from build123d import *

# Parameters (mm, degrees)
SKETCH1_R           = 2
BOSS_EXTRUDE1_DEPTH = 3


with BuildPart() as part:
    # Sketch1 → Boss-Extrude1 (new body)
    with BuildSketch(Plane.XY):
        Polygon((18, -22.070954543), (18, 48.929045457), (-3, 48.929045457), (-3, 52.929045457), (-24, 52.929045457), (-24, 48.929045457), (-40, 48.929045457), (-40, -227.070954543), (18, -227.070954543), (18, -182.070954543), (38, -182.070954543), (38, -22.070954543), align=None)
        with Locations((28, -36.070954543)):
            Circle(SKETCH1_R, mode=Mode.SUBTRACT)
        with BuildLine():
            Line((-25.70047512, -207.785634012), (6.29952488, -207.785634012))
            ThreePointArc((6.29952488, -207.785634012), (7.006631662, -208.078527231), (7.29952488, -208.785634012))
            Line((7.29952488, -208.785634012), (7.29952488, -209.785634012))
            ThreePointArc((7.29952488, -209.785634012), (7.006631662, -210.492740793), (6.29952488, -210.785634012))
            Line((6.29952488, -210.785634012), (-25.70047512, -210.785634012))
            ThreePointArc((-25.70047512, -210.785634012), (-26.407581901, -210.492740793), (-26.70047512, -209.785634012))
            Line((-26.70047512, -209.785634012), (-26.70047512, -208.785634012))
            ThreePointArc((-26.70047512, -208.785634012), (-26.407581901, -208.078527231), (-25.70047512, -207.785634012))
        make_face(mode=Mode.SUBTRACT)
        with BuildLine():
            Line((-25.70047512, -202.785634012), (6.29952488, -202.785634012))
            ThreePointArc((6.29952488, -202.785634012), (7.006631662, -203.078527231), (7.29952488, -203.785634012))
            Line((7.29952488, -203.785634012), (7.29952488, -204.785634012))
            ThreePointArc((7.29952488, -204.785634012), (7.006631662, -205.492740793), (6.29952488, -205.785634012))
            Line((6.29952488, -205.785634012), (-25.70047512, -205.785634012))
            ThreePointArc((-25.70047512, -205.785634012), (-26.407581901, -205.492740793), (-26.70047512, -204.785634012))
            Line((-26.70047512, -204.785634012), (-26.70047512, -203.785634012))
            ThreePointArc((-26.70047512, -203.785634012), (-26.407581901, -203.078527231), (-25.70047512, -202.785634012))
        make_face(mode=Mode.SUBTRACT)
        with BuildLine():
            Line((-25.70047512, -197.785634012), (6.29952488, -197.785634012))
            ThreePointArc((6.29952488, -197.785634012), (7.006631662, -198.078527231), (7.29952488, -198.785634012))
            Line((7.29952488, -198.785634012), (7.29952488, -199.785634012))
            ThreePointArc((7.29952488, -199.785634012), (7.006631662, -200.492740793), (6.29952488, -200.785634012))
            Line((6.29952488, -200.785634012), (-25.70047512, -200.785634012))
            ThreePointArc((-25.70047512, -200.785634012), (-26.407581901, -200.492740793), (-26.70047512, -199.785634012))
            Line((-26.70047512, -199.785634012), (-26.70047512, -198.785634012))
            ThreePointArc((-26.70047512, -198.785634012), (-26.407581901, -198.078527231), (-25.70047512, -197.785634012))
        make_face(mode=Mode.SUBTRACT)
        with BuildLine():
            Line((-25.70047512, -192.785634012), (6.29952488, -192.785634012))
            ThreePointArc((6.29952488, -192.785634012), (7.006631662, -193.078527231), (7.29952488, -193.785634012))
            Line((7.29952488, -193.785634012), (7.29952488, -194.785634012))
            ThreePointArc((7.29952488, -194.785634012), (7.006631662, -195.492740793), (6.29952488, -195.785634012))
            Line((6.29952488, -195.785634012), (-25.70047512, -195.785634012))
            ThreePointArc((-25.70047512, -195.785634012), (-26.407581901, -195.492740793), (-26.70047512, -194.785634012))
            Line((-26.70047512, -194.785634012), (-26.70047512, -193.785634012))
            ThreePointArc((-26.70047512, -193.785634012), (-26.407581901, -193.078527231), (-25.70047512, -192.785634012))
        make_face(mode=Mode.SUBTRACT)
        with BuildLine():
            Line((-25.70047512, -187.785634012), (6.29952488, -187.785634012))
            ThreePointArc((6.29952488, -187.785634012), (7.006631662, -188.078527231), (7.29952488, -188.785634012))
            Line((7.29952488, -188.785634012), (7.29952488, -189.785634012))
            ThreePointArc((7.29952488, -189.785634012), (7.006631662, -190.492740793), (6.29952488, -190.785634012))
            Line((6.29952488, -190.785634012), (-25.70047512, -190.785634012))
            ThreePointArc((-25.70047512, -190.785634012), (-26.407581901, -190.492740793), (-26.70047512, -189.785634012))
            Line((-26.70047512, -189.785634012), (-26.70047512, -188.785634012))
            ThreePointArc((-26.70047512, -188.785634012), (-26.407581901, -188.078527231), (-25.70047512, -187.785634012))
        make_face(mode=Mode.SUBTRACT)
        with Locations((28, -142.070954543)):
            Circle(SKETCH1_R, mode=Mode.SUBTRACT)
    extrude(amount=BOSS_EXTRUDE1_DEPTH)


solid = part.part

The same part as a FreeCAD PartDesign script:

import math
import FreeCAD as App
import Part
import Sketcher
from FreeCAD import Vector
Q = App.Units.Quantity


def add_polygon(sketch, points):
    """Adds a closed chain of lines whose ends are joined by coincident constraints."""
    first, n = sketch.GeometryCount, len(points)
    for a, b in zip(points, points[1:] + points[:1]):
        sketch.addGeometry(Part.LineSegment(App.Vector(*a, 0), App.Vector(*b, 0)), False)
    for i in range(n):
        sketch.addConstraint(Sketcher.Constraint("Coincident", first + i, 2, first + (i + 1) % n, 1))

doc = App.newDocument("Part")
params = doc.addObject("Spreadsheet::Sheet", "Params")
for row, (alias, value) in enumerate([
    ("sketch1_diameter", "4 mm"),
    ("sketch1_radius", "1 mm"),
    ("sketch1_width", "21 mm"),
    ("sketch1_width2", "16 mm"),
    ("sketch1_width3", "20 mm"),
    ("pad1_length", "3 mm"),
], start=1):
    params.set(f"A{row}", alias)
    params.set(f"B{row}", "=" + value)
    params.setAlias(f"B{row}", alias)

body = doc.addObject("PartDesign::Body", "Body")

sketch1 = body.newObject("Sketcher::SketchObject", "Sketch")
sketch1.AttachmentSupport = (doc.getObject("XY_Plane"), [""])
sketch1.MapMode = "FlatFace"
add_polygon(sketch1, [(18, -22.1), (18, 48.9), (-3, 48.9), (-3, 52.9), (-24, 52.9), (-24, 48.9), (-40, 48.9), (-40, -227.1), (18, -227.1), (18, -182.1), (38, -182.1), (38, -22.1)])
sketch1.addGeometry(Part.ArcOfCircle(Part.Circle(Vector(-25.7, -208.8, 0), Vector(0, 0, 1), 1), math.radians(90), math.radians(180)), False)
sketch1.addGeometry(Part.LineSegment(Vector(-25.7, -207.8, 0), Vector(6.3, -207.8, 0)), False)
sketch1.addGeometry(Part.ArcOfCircle(Part.Circle(Vector(6.3, -208.8, 0), Vector(0, 0, 1), 1), math.radians(0), math.radians(90)), False)
sketch1.addGeometry(Part.LineSegment(Vector(7.3, -208.8, 0), Vector(7.3, -209.8, 0)), False)
sketch1.addGeometry(Part.ArcOfCircle(Part.Circle(Vector(6.3, -209.8, 0), Vector(0, 0, 1), 1), math.radians(-90), math.radians(0)), False)
sketch1.addGeometry(Part.LineSegment(Vector(6.3, -210.8, 0), Vector(-25.7, -210.8, 0)), False)
sketch1.addGeometry(Part.ArcOfCircle(Part.Circle(Vector(-25.7, -209.8, 0), Vector(0, 0, 1), 1), math.radians(-180), math.radians(-90)), False)
sketch1.addGeometry(Part.LineSegment(Vector(-26.7, -209.8, 0), Vector(-26.7, -208.8, 0)), False)
sketch1.addGeometry(Part.ArcOfCircle(Part.Circle(Vector(-25.7, -203.8, 0), Vector(0, 0, 1), 1), math.radians(90), math.radians(180)), False)
sketch1.addGeometry(Part.LineSegment(Vector(-25.7, -202.8, 0), Vector(6.3, -202.8, 0)), False)
sketch1.addGeometry(Part.ArcOfCircle(Part.Circle(Vector(6.3, -203.8, 0), Vector(0, 0, 1), 1), math.radians(0), math.radians(90)), False)
sketch1.addGeometry(Part.LineSegment(Vector(7.3, -203.8, 0), Vector(7.3, -204.8, 0)), False)
sketch1.addGeometry(Part.ArcOfCircle(Part.Circle(Vector(6.3, -204.8, 0), Vector(0, 0, 1), 1), math.radians(-90), math.radians(0)), False)
sketch1.addGeometry(Part.LineSegment(Vector(6.3, -205.8, 0), Vector(-25.7, -205.8, 0)), False)
sketch1.addGeometry(Part.ArcOfCircle(Part.Circle(Vector(-25.7, -204.8, 0), Vector(0, 0, 1), 1), math.radians(-180), math.radians(-90)), False)
sketch1.addGeometry(Part.LineSegment(Vector(-26.7, -204.8, 0), Vector(-26.7, -203.8, 0)), False)
sketch1.addGeometry(Part.ArcOfCircle(Part.Circle(Vector(-25.7, -198.8, 0), Vector(0, 0, 1), 1), math.radians(90), math.radians(180)), False)
sketch1.addGeometry(Part.LineSegment(Vector(-25.7, -197.8, 0), Vector(6.3, -197.8, 0)), False)
sketch1.addGeometry(Part.ArcOfCircle(Part.Circle(Vector(6.3, -198.8, 0), Vector(0, 0, 1), 1), math.radians(0), math.radians(90)), False)
sketch1.addGeometry(Part.LineSegment(Vector(7.3, -198.8, 0), Vector(7.3, -199.8, 0)), False)
sketch1.addGeometry(Part.ArcOfCircle(Part.Circle(Vector(6.3, -199.8, 0), Vector(0, 0, 1), 1), math.radians(-90), math.radians(0)), False)
sketch1.addGeometry(Part.LineSegment(Vector(6.3, -200.8, 0), Vector(-25.7, -200.8, 0)), False)
sketch1.addGeometry(Part.ArcOfCircle(Part.Circle(Vector(-25.7, -199.8, 0), Vector(0, 0, 1), 1), math.radians(-180), math.radians(-90)), False)
sketch1.addGeometry(Part.LineSegment(Vector(-26.7, -199.8, 0), Vector(-26.7, -198.8, 0)), False)
sketch1.addGeometry(Part.ArcOfCircle(Part.Circle(Vector(-25.7, -193.8, 0), Vector(0, 0, 1), 1), math.radians(90), math.radians(180)), False)
sketch1.addGeometry(Part.LineSegment(Vector(-25.7, -192.8, 0), Vector(6.3, -192.8, 0)), False)
sketch1.addGeometry(Part.ArcOfCircle(Part.Circle(Vector(6.3, -193.8, 0), Vector(0, 0, 1), 1), math.radians(0), math.radians(90)), False)
sketch1.addGeometry(Part.LineSegment(Vector(7.3, -193.8, 0), Vector(7.3, -194.8, 0)), False)
sketch1.addGeometry(Part.ArcOfCircle(Part.Circle(Vector(6.3, -194.8, 0), Vector(0, 0, 1), 1), math.radians(-90), math.radians(0)), False)
sketch1.addGeometry(Part.LineSegment(Vector(6.3, -195.8, 0), Vector(-25.7, -195.8, 0)), False)
sketch1.addGeometry(Part.ArcOfCircle(Part.Circle(Vector(-25.7, -194.8, 0), Vector(0, 0, 1), 1), math.radians(-180), math.radians(-90)), False)
sketch1.addGeometry(Part.LineSegment(Vector(-26.7, -194.8, 0), Vector(-26.7, -193.8, 0)), False)
sketch1.addGeometry(Part.ArcOfCircle(Part.Circle(Vector(-25.7, -188.8, 0), Vector(0, 0, 1), 1), math.radians(90), math.radians(180)), False)
sketch1.addGeometry(Part.LineSegment(Vector(-25.7, -187.8, 0), Vector(6.3, -187.8, 0)), False)
sketch1.addGeometry(Part.ArcOfCircle(Part.Circle(Vector(6.3, -188.8, 0), Vector(0, 0, 1), 1), math.radians(0), math.radians(90)), False)
sketch1.addGeometry(Part.LineSegment(Vector(7.3, -188.8, 0), Vector(7.3, -189.8, 0)), False)
sketch1.addGeometry(Part.ArcOfCircle(Part.Circle(Vector(6.3, -189.8, 0), Vector(0, 0, 1), 1), math.radians(-90), math.radians(0)), False)
sketch1.addGeometry(Part.LineSegment(Vector(6.3, -190.8, 0), Vector(-25.7, -190.8, 0)), False)
sketch1.addGeometry(Part.ArcOfCircle(Part.Circle(Vector(-25.7, -189.8, 0), Vector(0, 0, 1), 1), math.radians(-180), math.radians(-90)), False)
sketch1.addGeometry(Part.LineSegment(Vector(-26.7, -189.8, 0), Vector(-26.7, -188.8, 0)), False)
sketch1.addGeometry(Part.Circle(Vector(28, -142.1, 0), Vector(0, 0, 1), 2), False)
sketch1.addGeometry(Part.Circle(Vector(28, -36.1, 0), Vector(0, 0, 1), 2), False)
sketch1.addConstraint(Sketcher.Constraint("Tangent", 12, 1, 13, 1))
sketch1.addConstraint(Sketcher.Constraint("Tangent", 13, 2, 14, 2))
sketch1.addConstraint(Sketcher.Constraint("Tangent", 14, 1, 15, 1))
sketch1.addConstraint(Sketcher.Constraint("Tangent", 15, 2, 16, 2))
sketch1.addConstraint(Sketcher.Constraint("Tangent", 16, 1, 17, 1))
sketch1.addConstraint(Sketcher.Constraint("Tangent", 17, 2, 18, 2))
sketch1.addConstraint(Sketcher.Constraint("Tangent", 18, 1, 19, 1))
sketch1.addConstraint(Sketcher.Constraint("Tangent", 19, 2, 12, 2))
sketch1.addConstraint(Sketcher.Constraint("Tangent", 20, 1, 21, 1))
sketch1.addConstraint(Sketcher.Constraint("Tangent", 21, 2, 22, 2))
sketch1.addConstraint(Sketcher.Constraint("Tangent", 22, 1, 23, 1))
sketch1.addConstraint(Sketcher.Constraint("Tangent", 23, 2, 24, 2))
sketch1.addConstraint(Sketcher.Constraint("Tangent", 24, 1, 25, 1))
sketch1.addConstraint(Sketcher.Constraint("Tangent", 25, 2, 26, 2))
sketch1.addConstraint(Sketcher.Constraint("Tangent", 26, 1, 27, 1))
sketch1.addConstraint(Sketcher.Constraint("Tangent", 27, 2, 20, 2))
sketch1.addConstraint(Sketcher.Constraint("Tangent", 28, 1, 29, 1))
sketch1.addConstraint(Sketcher.Constraint("Tangent", 29, 2, 30, 2))
sketch1.addConstraint(Sketcher.Constraint("Tangent", 30, 1, 31, 1))
sketch1.addConstraint(Sketcher.Constraint("Tangent", 31, 2, 32, 2))
sketch1.addConstraint(Sketcher.Constraint("Tangent", 32, 1, 33, 1))
sketch1.addConstraint(Sketcher.Constraint("Tangent", 33, 2, 34, 2))
sketch1.addConstraint(Sketcher.Constraint("Tangent", 34, 1, 35, 1))
sketch1.addConstraint(Sketcher.Constraint("Tangent", 35, 2, 28, 2))
sketch1.addConstraint(Sketcher.Constraint("Tangent", 36, 1, 37, 1))
sketch1.addConstraint(Sketcher.Constraint("Tangent", 37, 2, 38, 2))
sketch1.addConstraint(Sketcher.Constraint("Tangent", 38, 1, 39, 1))
sketch1.addConstraint(Sketcher.Constraint("Tangent", 39, 2, 40, 2))
sketch1.addConstraint(Sketcher.Constraint("Tangent", 40, 1, 41, 1))
sketch1.addConstraint(Sketcher.Constraint("Tangent", 41, 2, 42, 2))
sketch1.addConstraint(Sketcher.Constraint("Tangent", 42, 1, 43, 1))
sketch1.addConstraint(Sketcher.Constraint("Tangent", 43, 2, 36, 2))
sketch1.addConstraint(Sketcher.Constraint("Tangent", 44, 1, 45, 1))
sketch1.addConstraint(Sketcher.Constraint("Tangent", 45, 2, 46, 2))
sketch1.addConstraint(Sketcher.Constraint("Tangent", 46, 1, 47, 1))
sketch1.addConstraint(Sketcher.Constraint("Tangent", 47, 2, 48, 2))
sketch1.addConstraint(Sketcher.Constraint("Tangent", 48, 1, 49, 1))
sketch1.addConstraint(Sketcher.Constraint("Tangent", 49, 2, 50, 2))
sketch1.addConstraint(Sketcher.Constraint("Tangent", 50, 1, 51, 1))
sketch1.addConstraint(Sketcher.Constraint("Tangent", 51, 2, 44, 2))
sketch1.addConstraint(Sketcher.Constraint("Vertical", 0))
sketch1.addConstraint(Sketcher.Constraint("Horizontal", 1))
sketch1.addConstraint(Sketcher.Constraint("Vertical", 2))
sketch1.addConstraint(Sketcher.Constraint("Horizontal", 3))
sketch1.addConstraint(Sketcher.Constraint("Vertical", 4))
sketch1.addConstraint(Sketcher.Constraint("Horizontal", 5))
sketch1.addConstraint(Sketcher.Constraint("Vertical", 6))
sketch1.addConstraint(Sketcher.Constraint("Horizontal", 7))
sketch1.addConstraint(Sketcher.Constraint("Vertical", 8))
sketch1.addConstraint(Sketcher.Constraint("Horizontal", 9))
sketch1.addConstraint(Sketcher.Constraint("Vertical", 10))
sketch1.addConstraint(Sketcher.Constraint("Horizontal", 11))
sketch1.addConstraint(Sketcher.Constraint("Horizontal", 13))
sketch1.addConstraint(Sketcher.Constraint("Vertical", 15))
sketch1.addConstraint(Sketcher.Constraint("Horizontal", 17))
sketch1.addConstraint(Sketcher.Constraint("Vertical", 19))
sketch1.addConstraint(Sketcher.Constraint("Horizontal", 21))
sketch1.addConstraint(Sketcher.Constraint("Vertical", 23))
sketch1.addConstraint(Sketcher.Constraint("Horizontal", 25))
sketch1.addConstraint(Sketcher.Constraint("Vertical", 27))
sketch1.addConstraint(Sketcher.Constraint("Horizontal", 29))
sketch1.addConstraint(Sketcher.Constraint("Vertical", 31))
sketch1.addConstraint(Sketcher.Constraint("Horizontal", 33))
sketch1.addConstraint(Sketcher.Constraint("Vertical", 35))
sketch1.addConstraint(Sketcher.Constraint("Horizontal", 37))
sketch1.addConstraint(Sketcher.Constraint("Vertical", 39))
sketch1.addConstraint(Sketcher.Constraint("Horizontal", 41))
sketch1.addConstraint(Sketcher.Constraint("Vertical", 43))
sketch1.addConstraint(Sketcher.Constraint("Horizontal", 45))
sketch1.addConstraint(Sketcher.Constraint("Vertical", 47))
sketch1.addConstraint(Sketcher.Constraint("Horizontal", 49))
sketch1.addConstraint(Sketcher.Constraint("Vertical", 51))
sketch1.addConstraint(Sketcher.Constraint("Equal", 12, 14))
sketch1.addConstraint(Sketcher.Constraint("Equal", 14, 16))
sketch1.addConstraint(Sketcher.Constraint("Equal", 16, 18))
sketch1.addConstraint(Sketcher.Constraint("Equal", 18, 20))
sketch1.addConstraint(Sketcher.Constraint("Equal", 20, 22))
sketch1.addConstraint(Sketcher.Constraint("Equal", 22, 24))
sketch1.addConstraint(Sketcher.Constraint("Equal", 24, 26))
sketch1.addConstraint(Sketcher.Constraint("Equal", 26, 28))
sketch1.addConstraint(Sketcher.Constraint("Equal", 28, 30))
sketch1.addConstraint(Sketcher.Constraint("Equal", 30, 32))
sketch1.addConstraint(Sketcher.Constraint("Equal", 32, 34))
sketch1.addConstraint(Sketcher.Constraint("Equal", 34, 36))
sketch1.addConstraint(Sketcher.Constraint("Equal", 36, 38))
sketch1.addConstraint(Sketcher.Constraint("Equal", 38, 40))
sketch1.addConstraint(Sketcher.Constraint("Equal", 40, 42))
sketch1.addConstraint(Sketcher.Constraint("Equal", 42, 44))
sketch1.addConstraint(Sketcher.Constraint("Equal", 44, 46))
sketch1.addConstraint(Sketcher.Constraint("Equal", 46, 48))
sketch1.addConstraint(Sketcher.Constraint("Equal", 48, 50))
sketch1.addConstraint(Sketcher.Constraint("Equal", 52, 53))
sketch1.addConstraint(Sketcher.Constraint("Horizontal", 1, 2, 4, 2))
sketch1.addConstraint(Sketcher.Constraint("Vertical", 18, 3, 20, 3))
sketch1.addConstraint(Sketcher.Constraint("Vertical", 16, 3, 22, 3))
sketch1.addConstraint(Sketcher.Constraint("Vertical", 26, 3, 28, 3))
sketch1.addConstraint(Sketcher.Constraint("Vertical", 24, 3, 30, 3))
sketch1.addConstraint(Sketcher.Constraint("Vertical", 34, 3, 36, 3))
sketch1.addConstraint(Sketcher.Constraint("Vertical", 32, 3, 38, 3))
sketch1.addConstraint(Sketcher.Constraint("Vertical", 42, 3, 44, 3))
sketch1.addConstraint(Sketcher.Constraint("Vertical", 40, 3, 46, 3))
sketch1.addConstraint(Sketcher.Constraint("Vertical", 52, 3, 53, 3))
sketch1.addConstraint(Sketcher.Constraint("Vertical", 0, 2, 7, 2))
sketch1.addConstraint(Sketcher.Constraint("Equal", 1, 3))
sketch1.addConstraint(Sketcher.Constraint("Equal", 19, 23))
sketch1.addConstraint(Sketcher.Constraint("Equal", 27, 31))
sketch1.addConstraint(Sketcher.Constraint("Equal", 35, 39))
sketch1.addConstraint(Sketcher.Constraint("Equal", 43, 47))
sketch1.addConstraint(Sketcher.Constraint("Diameter", 52, Q("4 mm")))
sketch1.addConstraint(Sketcher.Constraint("Radius", 12, Q("1 mm")))
sketch1.addConstraint(Sketcher.Constraint("DistanceX", 1, 2, 1, 1, Q("21 mm")))
sketch1.addConstraint(Sketcher.Constraint("DistanceX", 5, 2, 5, 1, Q("16 mm")))
sketch1.addConstraint(Sketcher.Constraint("DistanceX", 9, 1, 9, 2, Q("20 mm")))
sketch1.addConstraint(Sketcher.Constraint("DistanceX", 13, 1, 13, 2, Q("32 mm")))
sketch1.addConstraint(Sketcher.Constraint("DistanceY", 0, 1, 0, 2, Q("71 mm")))
sketch1.addConstraint(Sketcher.Constraint("DistanceY", 2, 1, 2, 2, Q("4 mm")))
sketch1.addConstraint(Sketcher.Constraint("DistanceY", 6, 2, 6, 1, Q("276 mm")))
sketch1.addConstraint(Sketcher.Constraint("DistanceY", 8, 1, 8, 2, Q("45 mm")))
sketch1.addConstraint(Sketcher.Constraint("DistanceY", 15, 2, 15, 1, Q("1 mm")))
sketch1.addConstraint(Sketcher.Constraint("DistanceX", -1, 1, 52, 3, Q("28 mm")))
sketch1.addConstraint(Sketcher.Constraint("DistanceX", -1, 1, 0, 2, Q("18 mm")))
sketch1.addConstraint(Sketcher.Constraint("DistanceX", 12, 3, -1, 1, Q("25.700475 mm")))
sketch1.addConstraint(Sketcher.Constraint("DistanceY", 12, 3, -1, 1, Q("208.785634 mm")))
sketch1.addConstraint(Sketcher.Constraint("DistanceY", 20, 3, -1, 1, Q("203.785634 mm")))
sketch1.addConstraint(Sketcher.Constraint("DistanceY", 28, 3, -1, 1, Q("198.785634 mm")))
sketch1.addConstraint(Sketcher.Constraint("DistanceY", 36, 3, -1, 1, Q("193.785634 mm")))
sketch1.addConstraint(Sketcher.Constraint("DistanceY", 44, 3, -1, 1, Q("188.785634 mm")))
sketch1.addConstraint(Sketcher.Constraint("DistanceY", 52, 3, -1, 1, Q("142.070955 mm")))
sketch1.addConstraint(Sketcher.Constraint("DistanceY", 53, 3, -1, 1, Q("36.070955 mm")))
sketch1.addConstraint(Sketcher.Constraint("DistanceY", -1, 1, 0, 2, Q("48.929045 mm")))
sketch1.setExpression("Constraints[120]", "Params.sketch1_diameter")
sketch1.setExpression("Constraints[121]", "Params.sketch1_radius")
sketch1.setExpression("Constraints[122]", "Params.sketch1_width")
sketch1.setExpression("Constraints[123]", "Params.sketch1_width2")
sketch1.setExpression("Constraints[124]", "Params.sketch1_width3")
pad1 = body.newObject("PartDesign::Pad", "Pad")
pad1.Profile = sketch1
pad1.setExpression("Length", "Params.pad1_length")

doc.recompute()
